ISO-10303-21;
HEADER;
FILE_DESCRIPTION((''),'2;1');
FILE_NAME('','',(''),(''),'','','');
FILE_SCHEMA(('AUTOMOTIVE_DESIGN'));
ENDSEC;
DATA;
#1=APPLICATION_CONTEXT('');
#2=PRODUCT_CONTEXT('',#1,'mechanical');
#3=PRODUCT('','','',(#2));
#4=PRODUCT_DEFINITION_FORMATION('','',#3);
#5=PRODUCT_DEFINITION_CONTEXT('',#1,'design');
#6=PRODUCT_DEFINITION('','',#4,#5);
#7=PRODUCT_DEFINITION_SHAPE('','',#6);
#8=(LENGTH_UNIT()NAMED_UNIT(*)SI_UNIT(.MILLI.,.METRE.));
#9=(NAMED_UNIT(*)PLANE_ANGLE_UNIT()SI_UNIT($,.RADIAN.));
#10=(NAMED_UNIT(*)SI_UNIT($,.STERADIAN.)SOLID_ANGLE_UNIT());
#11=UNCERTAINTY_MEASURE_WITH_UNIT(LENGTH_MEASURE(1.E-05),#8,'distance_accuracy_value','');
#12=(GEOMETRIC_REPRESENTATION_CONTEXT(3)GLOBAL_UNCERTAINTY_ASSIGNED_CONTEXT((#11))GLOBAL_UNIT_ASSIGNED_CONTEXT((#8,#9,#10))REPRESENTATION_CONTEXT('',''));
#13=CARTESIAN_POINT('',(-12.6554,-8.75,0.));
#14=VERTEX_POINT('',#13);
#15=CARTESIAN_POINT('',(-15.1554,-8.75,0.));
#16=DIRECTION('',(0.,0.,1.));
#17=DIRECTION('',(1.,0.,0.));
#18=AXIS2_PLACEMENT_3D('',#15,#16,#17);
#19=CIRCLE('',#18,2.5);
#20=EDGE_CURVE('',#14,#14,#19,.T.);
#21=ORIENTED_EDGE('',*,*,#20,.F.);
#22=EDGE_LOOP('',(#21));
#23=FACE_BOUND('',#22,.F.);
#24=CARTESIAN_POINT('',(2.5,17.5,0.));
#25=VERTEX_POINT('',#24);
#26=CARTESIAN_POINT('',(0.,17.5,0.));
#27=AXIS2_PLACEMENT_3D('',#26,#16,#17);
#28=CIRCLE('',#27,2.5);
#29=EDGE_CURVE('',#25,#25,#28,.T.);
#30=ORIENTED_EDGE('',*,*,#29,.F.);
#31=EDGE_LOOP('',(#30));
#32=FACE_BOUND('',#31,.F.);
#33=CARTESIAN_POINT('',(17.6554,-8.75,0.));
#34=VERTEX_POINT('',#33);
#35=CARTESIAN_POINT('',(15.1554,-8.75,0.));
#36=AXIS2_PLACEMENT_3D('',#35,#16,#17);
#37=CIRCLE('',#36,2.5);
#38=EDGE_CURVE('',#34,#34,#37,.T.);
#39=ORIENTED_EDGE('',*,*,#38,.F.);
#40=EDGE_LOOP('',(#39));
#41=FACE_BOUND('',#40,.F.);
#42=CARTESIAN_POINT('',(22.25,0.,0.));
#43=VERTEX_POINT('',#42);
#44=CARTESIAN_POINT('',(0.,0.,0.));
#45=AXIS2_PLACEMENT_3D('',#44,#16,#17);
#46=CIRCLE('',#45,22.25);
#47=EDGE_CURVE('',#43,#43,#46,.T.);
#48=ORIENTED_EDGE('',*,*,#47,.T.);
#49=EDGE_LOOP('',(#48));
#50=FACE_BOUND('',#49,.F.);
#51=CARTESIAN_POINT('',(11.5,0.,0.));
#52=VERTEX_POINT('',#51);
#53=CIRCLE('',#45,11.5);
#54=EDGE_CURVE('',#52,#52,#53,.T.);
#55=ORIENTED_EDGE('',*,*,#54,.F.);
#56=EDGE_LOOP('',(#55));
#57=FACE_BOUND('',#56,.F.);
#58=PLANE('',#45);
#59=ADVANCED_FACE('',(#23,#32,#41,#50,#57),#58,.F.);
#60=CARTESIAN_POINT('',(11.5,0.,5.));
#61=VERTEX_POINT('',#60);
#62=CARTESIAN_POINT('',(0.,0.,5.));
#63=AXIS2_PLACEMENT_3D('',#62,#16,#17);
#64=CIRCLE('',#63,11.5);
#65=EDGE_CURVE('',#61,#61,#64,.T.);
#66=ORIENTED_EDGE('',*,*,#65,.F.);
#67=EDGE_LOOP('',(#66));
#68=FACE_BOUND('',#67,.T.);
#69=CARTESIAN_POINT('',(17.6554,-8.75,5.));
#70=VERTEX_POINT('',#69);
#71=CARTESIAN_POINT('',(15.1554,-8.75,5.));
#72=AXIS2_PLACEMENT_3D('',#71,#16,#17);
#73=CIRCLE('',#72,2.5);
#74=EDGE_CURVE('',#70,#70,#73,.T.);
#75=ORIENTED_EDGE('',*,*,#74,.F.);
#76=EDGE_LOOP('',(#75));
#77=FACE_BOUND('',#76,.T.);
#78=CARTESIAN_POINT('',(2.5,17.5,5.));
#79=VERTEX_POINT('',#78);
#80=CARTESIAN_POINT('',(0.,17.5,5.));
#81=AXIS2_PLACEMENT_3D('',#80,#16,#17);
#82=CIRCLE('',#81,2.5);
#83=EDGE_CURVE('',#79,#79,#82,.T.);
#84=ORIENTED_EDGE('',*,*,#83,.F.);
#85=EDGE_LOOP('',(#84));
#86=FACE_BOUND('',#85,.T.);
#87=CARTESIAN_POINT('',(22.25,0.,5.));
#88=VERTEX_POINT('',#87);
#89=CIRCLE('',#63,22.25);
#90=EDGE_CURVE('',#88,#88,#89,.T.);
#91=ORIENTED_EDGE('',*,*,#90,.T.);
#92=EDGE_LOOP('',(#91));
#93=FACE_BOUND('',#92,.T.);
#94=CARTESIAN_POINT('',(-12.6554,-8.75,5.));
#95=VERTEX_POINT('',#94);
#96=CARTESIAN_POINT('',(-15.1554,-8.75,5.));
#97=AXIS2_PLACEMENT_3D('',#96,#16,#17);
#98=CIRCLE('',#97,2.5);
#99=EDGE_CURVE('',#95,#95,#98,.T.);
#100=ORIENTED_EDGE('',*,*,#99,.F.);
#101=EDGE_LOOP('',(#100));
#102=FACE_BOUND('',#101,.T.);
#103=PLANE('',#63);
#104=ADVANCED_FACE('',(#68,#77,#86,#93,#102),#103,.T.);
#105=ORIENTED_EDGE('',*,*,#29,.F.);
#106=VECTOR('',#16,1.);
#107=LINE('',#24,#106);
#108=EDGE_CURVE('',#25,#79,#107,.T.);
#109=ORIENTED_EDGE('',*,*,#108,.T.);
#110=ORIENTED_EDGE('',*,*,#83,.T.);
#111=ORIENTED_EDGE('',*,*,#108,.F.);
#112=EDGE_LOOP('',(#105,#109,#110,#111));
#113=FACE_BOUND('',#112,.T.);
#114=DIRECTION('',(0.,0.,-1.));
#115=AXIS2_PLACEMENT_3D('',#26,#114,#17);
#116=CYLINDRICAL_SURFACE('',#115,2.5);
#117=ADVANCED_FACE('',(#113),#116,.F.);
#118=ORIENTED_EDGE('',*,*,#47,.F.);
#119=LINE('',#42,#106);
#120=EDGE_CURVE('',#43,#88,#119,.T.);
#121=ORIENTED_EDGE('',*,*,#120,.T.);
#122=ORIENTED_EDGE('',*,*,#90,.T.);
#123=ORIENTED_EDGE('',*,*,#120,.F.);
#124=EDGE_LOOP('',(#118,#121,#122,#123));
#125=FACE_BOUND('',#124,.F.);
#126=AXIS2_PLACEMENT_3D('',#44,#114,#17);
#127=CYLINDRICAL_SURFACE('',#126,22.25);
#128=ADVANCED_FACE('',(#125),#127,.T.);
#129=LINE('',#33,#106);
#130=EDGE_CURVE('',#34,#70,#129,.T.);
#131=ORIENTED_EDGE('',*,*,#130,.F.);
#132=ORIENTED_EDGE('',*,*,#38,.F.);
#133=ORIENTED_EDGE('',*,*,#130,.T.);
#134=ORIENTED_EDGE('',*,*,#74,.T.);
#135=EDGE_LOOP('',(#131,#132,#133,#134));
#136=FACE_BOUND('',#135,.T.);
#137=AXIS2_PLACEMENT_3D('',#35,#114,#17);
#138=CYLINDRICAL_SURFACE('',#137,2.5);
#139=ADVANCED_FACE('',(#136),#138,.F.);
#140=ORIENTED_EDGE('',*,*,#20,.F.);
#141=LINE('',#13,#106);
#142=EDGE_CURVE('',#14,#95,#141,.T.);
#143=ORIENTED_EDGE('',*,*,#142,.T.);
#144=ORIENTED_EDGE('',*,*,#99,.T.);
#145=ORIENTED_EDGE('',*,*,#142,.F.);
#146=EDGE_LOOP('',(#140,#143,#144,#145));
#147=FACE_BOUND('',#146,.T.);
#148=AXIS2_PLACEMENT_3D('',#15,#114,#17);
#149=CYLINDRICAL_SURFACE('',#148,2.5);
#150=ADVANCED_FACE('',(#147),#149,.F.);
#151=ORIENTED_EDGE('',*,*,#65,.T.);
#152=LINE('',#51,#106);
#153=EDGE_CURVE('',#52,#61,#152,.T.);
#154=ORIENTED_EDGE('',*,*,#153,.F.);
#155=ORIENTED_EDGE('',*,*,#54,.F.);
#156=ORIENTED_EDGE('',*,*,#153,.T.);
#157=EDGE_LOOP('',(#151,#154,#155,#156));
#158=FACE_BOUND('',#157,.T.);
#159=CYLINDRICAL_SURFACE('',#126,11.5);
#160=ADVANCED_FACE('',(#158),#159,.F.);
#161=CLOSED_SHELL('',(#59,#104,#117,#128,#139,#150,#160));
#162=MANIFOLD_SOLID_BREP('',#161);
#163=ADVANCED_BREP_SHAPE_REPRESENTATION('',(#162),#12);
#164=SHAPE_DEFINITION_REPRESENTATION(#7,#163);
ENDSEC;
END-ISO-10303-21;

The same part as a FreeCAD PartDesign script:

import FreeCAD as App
import Part
import Sketcher

V = App.Vector
Q = App.Units.Quantity

doc = App.newDocument("Part")
body = doc.addObject("PartDesign::Body", "Body")

# Sketch on XY plane
sketch1 = body.newObject("Sketcher::SketchObject", "Sketch")
sketch1.AttachmentSupport = (doc.getObject("XY_Plane"), [""])
sketch1.MapMode = "FlatFace"
sketch1.addGeometry([
    Part.Circle(V(0, 0, 0), V(0, 0, 1), 22.2),  # 0
    Part.Circle(V(-15.2, -8.8, 0), V(0, 0, 1), 2.5),  # 1
    Part.Circle(V(15.2, -8.8, 0), V(0, 0, 1), 2.5),  # 2
    Part.Circle(V(0, 0, 0), V(0, 0, 1), 11.5),  # 3
    Part.Circle(V(0, 17.5, 0), V(0, 0, 1), 2.5),  # 4
], False)
sketch1.addConstraint([
    Sketcher.Constraint("Coincident", 0, 3, -1, 1),
    Sketcher.Constraint("Coincident", 3, 3, -1, 1),
    Sketcher.Constraint("Equal", 1, 2),
    Sketcher.Constraint("Equal", 2, 4),
    Sketcher.Constraint("Symmetric", 1, 3, 2, 3, -2),
    Sketcher.Constraint("PointOnObject", 4, 3, -2),
    Sketcher.Constraint("Diameter", 1, Q("5 mm")),
    Sketcher.Constraint("Diameter", 3, Q("23 mm")),
    Sketcher.Constraint("Diameter", 0, Q("44.5 mm")),
    Sketcher.Constraint("DistanceY", -1, 1, 4, 3, Q("17.5 mm")),
    Sketcher.Constraint("DistanceY", 1, 3, -1, 1, Q("8.75 mm")),
    Sketcher.Constraint("DistanceX", 1, 3, -1, 1, Q("15.1554 mm")),
])
pad1 = body.newObject("PartDesign::Pad", "Pad")
pad1.Profile = sketch1
pad1.Length = 5

doc.recompute()
